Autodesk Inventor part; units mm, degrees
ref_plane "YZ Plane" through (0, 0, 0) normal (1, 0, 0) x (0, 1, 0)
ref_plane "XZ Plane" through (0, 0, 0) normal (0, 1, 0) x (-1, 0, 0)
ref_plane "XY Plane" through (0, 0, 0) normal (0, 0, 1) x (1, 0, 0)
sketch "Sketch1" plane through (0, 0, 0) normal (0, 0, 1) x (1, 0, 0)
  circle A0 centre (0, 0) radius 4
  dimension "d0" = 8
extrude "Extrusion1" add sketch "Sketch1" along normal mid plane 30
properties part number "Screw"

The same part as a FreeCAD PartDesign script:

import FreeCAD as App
import Part
import Sketcher

V = App.Vector

doc = App.newDocument("Part")
params = doc.addObject("Spreadsheet::Sheet", "Params")
for row, (alias, value) in enumerate([
    ("sketch1_diameter", "8 mm"),
    ("pad1_length", "30 mm"),
], start=1):
    params.set(f"A{row}", alias)
    params.set(f"B{row}", "=" + value)
    params.setAlias(f"B{row}", alias)

body = doc.addObject("PartDesign::Body", "Body")

# Sketch on XY plane
sketch1 = body.newObject("Sketcher::SketchObject", "Sketch")
sketch1.AttachmentSupport = (doc.getObject("XY_Plane"), [""])
sketch1.MapMode = "FlatFace"
sketch1.addGeometry(Part.Circle(V(0, 0, 0), V(0, 0, 1), 4), False)
sketch1.addConstraint([
    Sketcher.Constraint("Coincident", 0, 3, -1, 1),
    Sketcher.Constraint("Diameter", 0, 8.0),
])
sketch1.setExpression("Constraints[1]", "Params.sketch1_diameter")
pad1 = body.newObject("PartDesign::Pad", "Pad")
pad1.Profile = sketch1
pad1.setExpression("Length", "Params.pad1_length")
pad1.Midplane = True

doc.recompute()
